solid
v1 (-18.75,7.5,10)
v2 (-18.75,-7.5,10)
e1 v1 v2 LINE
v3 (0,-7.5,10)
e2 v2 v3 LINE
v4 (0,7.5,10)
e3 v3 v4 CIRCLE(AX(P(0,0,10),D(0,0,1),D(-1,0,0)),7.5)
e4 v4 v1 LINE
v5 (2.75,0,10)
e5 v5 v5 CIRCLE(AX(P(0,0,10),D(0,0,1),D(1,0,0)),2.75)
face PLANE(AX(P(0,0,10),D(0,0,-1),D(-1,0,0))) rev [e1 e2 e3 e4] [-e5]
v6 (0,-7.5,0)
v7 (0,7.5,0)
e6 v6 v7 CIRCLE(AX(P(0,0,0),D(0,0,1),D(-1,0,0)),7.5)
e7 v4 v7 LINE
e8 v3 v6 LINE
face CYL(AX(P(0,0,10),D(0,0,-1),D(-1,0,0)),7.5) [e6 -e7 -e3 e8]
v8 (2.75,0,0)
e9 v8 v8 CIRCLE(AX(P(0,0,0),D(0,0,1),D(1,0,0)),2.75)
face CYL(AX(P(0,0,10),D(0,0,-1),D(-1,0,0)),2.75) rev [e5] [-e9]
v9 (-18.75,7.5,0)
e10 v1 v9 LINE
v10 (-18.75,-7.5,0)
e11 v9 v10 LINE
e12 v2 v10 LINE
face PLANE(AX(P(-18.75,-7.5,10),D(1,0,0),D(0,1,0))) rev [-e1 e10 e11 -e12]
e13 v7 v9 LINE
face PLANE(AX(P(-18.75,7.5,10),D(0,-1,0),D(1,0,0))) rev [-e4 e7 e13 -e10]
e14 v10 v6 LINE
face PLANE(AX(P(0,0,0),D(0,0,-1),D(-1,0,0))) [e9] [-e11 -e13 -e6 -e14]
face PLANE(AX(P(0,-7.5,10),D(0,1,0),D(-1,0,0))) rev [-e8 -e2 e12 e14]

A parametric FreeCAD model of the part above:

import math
import FreeCAD as App
import Part
import Sketcher

V = App.Vector
Q = App.Units.Quantity

doc = App.newDocument("Part")
params = doc.addObject("Spreadsheet::Sheet", "Params")
for row, (alias, value) in enumerate([
    ("sketch1_diameter", "5.5 mm"),
    ("sketch1_radius", "7.5 mm"),
    ("sketch1_width", "18.75 mm"),
    ("pad1_length", "10 mm"),
], start=1):
    params.set(f"A{row}", alias)
    params.set(f"B{row}", "=" + value)
    params.setAlias(f"B{row}", alias)

body = doc.addObject("PartDesign::Body", "Body")

# Sketch on XY plane
sketch1 = doc.addObject("Sketcher::SketchObject", "Sketch")
body.addObject(sketch1)
sketch1.AttachmentSupport = (doc.XY_Plane, [""])
sketch1.MapMode = "FlatFace"
sketch1.addGeometry([
    Part.LineSegment(V(-18.8, -7.5, 0), V(0, -7.5, 0)),  # 0
    Part.ArcOfCircle(Part.Circle(V(0, 0, 0), V(0, 0, 1), 7.5), math.radians(-90), math.radians(90)),  # 1
    Part.LineSegment(V(0, 7.5, 0), V(-18.8, 7.5, 0)),  # 2
    Part.LineSegment(V(-18.8, 7.5, 0), V(-18.8, -7.5, 0)),  # 3
    Part.Circle(V(0, 0, 0), V(0, 0, 1), 2.8),  # 4
], False)
sketch1.addConstraint([
    Sketcher.Constraint("Tangent", 0, 2, 1, 1),
    Sketcher.Constraint("Tangent", 1, 2, 2, 1),
    Sketcher.Constraint("Coincident", 2, 2, 3, 1),
    Sketcher.Constraint("Coincident", 3, 2, 0, 1),
    Sketcher.Constraint("Horizontal", 0),
    Sketcher.Constraint("Horizontal", 2),
    Sketcher.Constraint("Vertical", 3),
    Sketcher.Constraint("Coincident", 1, 3, -1, 1),
    Sketcher.Constraint("Coincident", 4, 3, -1, 1),
    Sketcher.Constraint("Diameter", 4, Q("5.5 mm")),
    Sketcher.Constraint("Radius", 1, Q("7.5 mm")),
    Sketcher.Constraint("DistanceX", 0, 1, 0, 2, Q("18.75 mm")),
])
sketch1.setExpression("Constraints[9]", "Params.sketch1_diameter")
sketch1.setExpression("Constraints[10]", "Params.sketch1_radius")
sketch1.setExpression("Constraints[11]", "Params.sketch1_width")
pad1 = doc.addObject("PartDesign::Pad", "Pad")
body.addObject(pad1)
pad1.Profile = sketch1
pad1.setExpression("Length", "Params.pad1_length")

doc.recompute()
